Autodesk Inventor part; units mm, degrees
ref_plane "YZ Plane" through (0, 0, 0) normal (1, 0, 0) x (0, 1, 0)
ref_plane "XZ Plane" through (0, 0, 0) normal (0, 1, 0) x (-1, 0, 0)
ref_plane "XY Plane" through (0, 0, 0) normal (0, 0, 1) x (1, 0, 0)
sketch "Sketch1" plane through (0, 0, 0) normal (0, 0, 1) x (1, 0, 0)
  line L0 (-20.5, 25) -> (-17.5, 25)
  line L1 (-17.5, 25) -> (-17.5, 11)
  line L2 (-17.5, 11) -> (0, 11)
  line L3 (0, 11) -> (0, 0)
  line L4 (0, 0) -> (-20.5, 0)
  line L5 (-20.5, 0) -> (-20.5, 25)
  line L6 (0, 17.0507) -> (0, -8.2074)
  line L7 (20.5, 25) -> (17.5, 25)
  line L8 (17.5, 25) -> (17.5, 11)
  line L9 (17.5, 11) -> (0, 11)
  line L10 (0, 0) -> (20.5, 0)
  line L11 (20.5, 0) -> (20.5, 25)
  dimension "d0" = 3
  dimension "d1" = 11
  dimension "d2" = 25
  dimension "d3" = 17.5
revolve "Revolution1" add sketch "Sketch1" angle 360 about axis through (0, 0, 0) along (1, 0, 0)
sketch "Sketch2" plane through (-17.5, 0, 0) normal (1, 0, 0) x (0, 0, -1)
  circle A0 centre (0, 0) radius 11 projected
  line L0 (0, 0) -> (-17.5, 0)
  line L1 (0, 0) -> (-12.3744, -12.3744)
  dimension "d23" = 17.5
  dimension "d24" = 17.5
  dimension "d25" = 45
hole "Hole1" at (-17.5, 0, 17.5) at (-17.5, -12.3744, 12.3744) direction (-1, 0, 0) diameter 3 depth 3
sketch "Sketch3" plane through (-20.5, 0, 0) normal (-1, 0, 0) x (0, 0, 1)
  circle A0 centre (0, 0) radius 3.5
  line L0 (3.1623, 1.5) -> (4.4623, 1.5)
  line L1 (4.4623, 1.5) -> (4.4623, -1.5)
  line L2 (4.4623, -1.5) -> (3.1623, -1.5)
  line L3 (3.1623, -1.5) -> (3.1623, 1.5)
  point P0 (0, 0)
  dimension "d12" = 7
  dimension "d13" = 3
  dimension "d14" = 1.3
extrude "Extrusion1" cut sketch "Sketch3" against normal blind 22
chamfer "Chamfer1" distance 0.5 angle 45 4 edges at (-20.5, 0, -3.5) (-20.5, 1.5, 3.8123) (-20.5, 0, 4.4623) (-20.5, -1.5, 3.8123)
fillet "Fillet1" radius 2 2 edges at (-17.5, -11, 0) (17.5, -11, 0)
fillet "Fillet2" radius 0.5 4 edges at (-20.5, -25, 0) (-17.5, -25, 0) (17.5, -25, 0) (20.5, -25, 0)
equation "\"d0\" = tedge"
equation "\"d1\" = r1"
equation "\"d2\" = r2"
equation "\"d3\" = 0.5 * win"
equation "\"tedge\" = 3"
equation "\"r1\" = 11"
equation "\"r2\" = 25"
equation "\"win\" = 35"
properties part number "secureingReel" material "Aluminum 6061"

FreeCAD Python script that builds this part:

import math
import FreeCAD as App
import Part
import Sketcher


def edges_at(feature, points):
    """Names of the edges that pass closest to the given points."""
    edges = feature.Shape.Edges
    near = lambda p: min(range(len(edges)), key=lambda i: edges[i].distToShape(Part.Vertex(*p))[0])
    return sorted({f"Edge{near(p) + 1}" for p in points})

doc = App.newDocument("Part")
body = doc.addObject("PartDesign::Body", "Body")

# Sketch on XY plane
sketch1 = doc.addObject("Sketcher::SketchObject", "Sketch")
body.addObject(sketch1)
sketch1.AttachmentSupport = (doc.XY_Plane, [""])
sketch1.MapMode = "FlatFace"
sketch1.addGeometry(Part.LineSegment(App.Vector(-17.5, 25, 0), App.Vector(-20.5, 25, 0)), False)
sketch1.addGeometry(Part.LineSegment(App.Vector(-20.5, 25, 0), App.Vector(-20.5, 0, 0)), False)
sketch1.addGeometry(Part.LineSegment(App.Vector(-20.5, 0, 0), App.Vector(20.5, 0, 0)), False)
sketch1.addGeometry(Part.LineSegment(App.Vector(20.5, 0, 0), App.Vector(20.5, 25, 0)), False)
sketch1.addGeometry(Part.LineSegment(App.Vector(20.5, 25, 0), App.Vector(17.5, 25, 0)), False)
sketch1.addGeometry(Part.LineSegment(App.Vector(17.5, 25, 0), App.Vector(17.5, 11, 0)), False)
sketch1.addGeometry(Part.LineSegment(App.Vector(17.5, 11, 0), App.Vector(-17.5, 11, 0)), False)
sketch1.addGeometry(Part.LineSegment(App.Vector(-17.5, 11, 0), App.Vector(-17.5, 25, 0)), False)
sketch1.addConstraint(Sketcher.Constraint("Coincident", 0, 2, 1, 1))
sketch1.addConstraint(Sketcher.Constraint("Coincident", 1, 2, 2, 1))
sketch1.addConstraint(Sketcher.Constraint("Coincident", 2, 2, 3, 1))
sketch1.addConstraint(Sketcher.Constraint("Coincident", 3, 2, 4, 1))
sketch1.addConstraint(Sketcher.Constraint("Coincident", 4, 2, 5, 1))
sketch1.addConstraint(Sketcher.Constraint("Coincident", 5, 2, 6, 1))
sketch1.addConstraint(Sketcher.Constraint("Coincident", 6, 2, 7, 1))
sketch1.addConstraint(Sketcher.Constraint("Coincident", 7, 2, 0, 1))
sketch1.addConstraint(Sketcher.Constraint("Horizontal", 0))
sketch1.addConstraint(Sketcher.Constraint("Vertical", 1))
sketch1.addConstraint(Sketcher.Constraint("Horizontal", 2))
sketch1.addConstraint(Sketcher.Constraint("Vertical", 3))
sketch1.addConstraint(Sketcher.Constraint("Horizontal", 4))
sketch1.addConstraint(Sketcher.Constraint("Vertical", 5))
sketch1.addConstraint(Sketcher.Constraint("Horizontal", 6))
sketch1.addConstraint(Sketcher.Constraint("Vertical", 7))
sketch1.addConstraint(Sketcher.Constraint("Symmetric", 1, 2, 2, 2, -1, 1))
sketch1.addConstraint(Sketcher.Constraint("Symmetric", 4, 2, 7, 2, -2))
sketch1.addConstraint(Sketcher.Constraint("DistanceX", 0, 2, 0, 1, 3.0))
sketch1.addConstraint(Sketcher.Constraint("DistanceY", 1, 2, 1, 1, 25.0))
sketch1.addConstraint(Sketcher.Constraint("DistanceY", -1, 1, 5, 2, 11.0))
sketch1.addConstraint(Sketcher.Constraint("DistanceX", -1, 1, 4, 2, 17.5))
revolution = doc.addObject("PartDesign::Revolution", "Revolution")
body.addObject(revolution)
revolution.Profile = sketch1
revolution.ReferenceAxis = (sketch1, ["H_Axis"])
revolution.Angle = 360

# Sketch on YZ plane
sketch2 = doc.addObject("Sketcher::SketchObject", "Sketch001")
body.addObject(sketch2)
sketch2.AttachmentSupport = (doc.YZ_Plane, [""])
sketch2.MapMode = "FlatFace"
sketch2.AttachmentOffset = App.Placement(App.Vector(0, 0, -17.5), App.Rotation())
sketch2.addGeometry(Part.Circle(App.Vector(0, 17.5, 0), App.Vector(0, 0, 1), 1.5), False)
sketch2.addGeometry(Part.Circle(App.Vector(-12.4, 12.4, 0), App.Vector(0, 0, 1), 1.5), False)
sketch2.addConstraint(Sketcher.Constraint("Equal", 0, 1))
sketch2.addConstraint(Sketcher.Constraint("PointOnObject", 0, 3, -2))
sketch2.addConstraint(Sketcher.Constraint("Diameter", 0, 3.0))
sketch2.addConstraint(Sketcher.Constraint("DistanceY", -1, 1, 0, 3, 17.5))
sketch2.addConstraint(Sketcher.Constraint("DistanceX", 1, 3, -1, 1, 12.3744))
sketch2.addConstraint(Sketcher.Constraint("DistanceY", -1, 1, 1, 3, 12.3744))
doc.recompute()
hole = doc.addObject("PartDesign::Hole", "Hole")
body.addObject(hole)
hole.Profile = sketch2
hole.ThreadType = "None"
hole.Diameter = 3
hole.DepthType = "Dimension"
hole.Depth = 3
hole.DrillPoint = "Flat"

# Sketch on YZ plane
sketch3 = doc.addObject("Sketcher::SketchObject", "Sketch002")
body.addObject(sketch3)
sketch3.AttachmentSupport = (doc.YZ_Plane, [""])
sketch3.MapMode = "FlatFace"
sketch3.AttachmentOffset = App.Placement(App.Vector(0, 0, -20.5), App.Rotation())
sketch3.addGeometry(Part.LineSegment(App.Vector(-1.5, 3.2, 0), App.Vector(-1.5, 4.5, 0)), False)
sketch3.addGeometry(Part.LineSegment(App.Vector(-1.5, 4.5, 0), App.Vector(1.5, 4.5, 0)), False)
sketch3.addGeometry(Part.LineSegment(App.Vector(1.5, 4.5, 0), App.Vector(1.5, 3.2, 0)), False)
sketch3.addGeometry(Part.ArcOfCircle(Part.Circle(App.Vector(0, 0, 0), App.Vector(0, 0, 1), 3.5), math.radians(115), math.radians(425)), False)
sketch3.addConstraint(Sketcher.Constraint("Coincident", 0, 2, 1, 1))
sketch3.addConstraint(Sketcher.Constraint("Coincident", 1, 2, 2, 1))
sketch3.addConstraint(Sketcher.Constraint("Coincident", 2, 2, 3, 2))
sketch3.addConstraint(Sketcher.Constraint("Coincident", 3, 1, 0, 1))
sketch3.addConstraint(Sketcher.Constraint("Vertical", 0))
sketch3.addConstraint(Sketcher.Constraint("Horizontal", 1))
sketch3.addConstraint(Sketcher.Constraint("Vertical", 2))
sketch3.addConstraint(Sketcher.Constraint("Coincident", 3, 3, -1, 1))
sketch3.addConstraint(Sketcher.Constraint("Horizontal", 2, 2, 3, 1))
sketch3.addConstraint(Sketcher.Constraint("Radius", 3, 3.5))
sketch3.addConstraint(Sketcher.Constraint("DistanceX", 1, 1, 1, 2, 3.0))
sketch3.addConstraint(Sketcher.Constraint("DistanceY", 0, 1, 0, 2, 1.3))
pocket1 = doc.addObject("PartDesign::Pocket", "Pocket")
body.addObject(pocket1)
pocket1.Profile = sketch3
pocket1.Length = 22
pocket1.Reversed = True
doc.recompute()

chamfer = doc.addObject("PartDesign::Chamfer", "Chamfer")
body.addObject(chamfer)
chamfer.Base = (pocket1, edges_at(pocket1, [
    (-20.5, 0, -3.5),
    (-20.5, 1.5, 3.812),
    (-20.5, 0, 4.462),
    (-20.5, -1.5, 3.812),
]))
chamfer.Size = 0.5
doc.recompute()

fillet = doc.addObject("PartDesign::Fillet", "Fillet")
body.addObject(fillet)
fillet.Base = (chamfer, edges_at(chamfer, [(-17.5, -11, 0), (17.5, -11, 0)]))
fillet.Radius = 2
doc.recompute()

fillet2 = doc.addObject("PartDesign::Fillet", "Fillet001")
body.addObject(fillet2)
fillet2.Base = (fillet, edges_at(fillet, [
    (-20.5, -25, 0),
    (-17.5, -25, 0),
    (17.5, -25, 0),
    (20.5, -25, 0),
]))
fillet2.Radius = 0.5

doc.recompute()
